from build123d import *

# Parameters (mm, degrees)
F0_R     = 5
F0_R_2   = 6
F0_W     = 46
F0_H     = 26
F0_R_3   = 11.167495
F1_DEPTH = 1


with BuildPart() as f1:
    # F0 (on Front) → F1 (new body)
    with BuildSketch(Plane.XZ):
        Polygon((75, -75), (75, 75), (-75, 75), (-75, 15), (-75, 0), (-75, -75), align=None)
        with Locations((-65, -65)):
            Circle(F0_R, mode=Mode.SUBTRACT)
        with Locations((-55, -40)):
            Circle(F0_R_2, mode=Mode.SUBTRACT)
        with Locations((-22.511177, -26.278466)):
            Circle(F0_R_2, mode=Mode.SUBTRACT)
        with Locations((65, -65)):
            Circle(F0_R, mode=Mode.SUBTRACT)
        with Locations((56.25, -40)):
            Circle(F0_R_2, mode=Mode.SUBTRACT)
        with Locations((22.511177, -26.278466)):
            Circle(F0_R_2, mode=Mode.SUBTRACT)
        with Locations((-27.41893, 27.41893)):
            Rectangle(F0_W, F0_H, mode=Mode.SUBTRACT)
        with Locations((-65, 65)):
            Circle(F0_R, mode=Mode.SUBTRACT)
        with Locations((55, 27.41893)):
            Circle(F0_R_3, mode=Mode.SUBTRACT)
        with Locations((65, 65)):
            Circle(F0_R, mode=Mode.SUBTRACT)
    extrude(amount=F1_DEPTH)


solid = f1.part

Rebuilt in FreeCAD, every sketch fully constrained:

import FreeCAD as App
import Part
import Sketcher


def add_polygon(sketch, points):
    """Adds a closed chain of lines whose ends are joined by coincident constraints."""
    first, n = sketch.GeometryCount, len(points)
    for a, b in zip(points, points[1:] + points[:1]):
        sketch.addGeometry(Part.LineSegment(App.Vector(*a, 0), App.Vector(*b, 0)), False)
    for i in range(n):
        sketch.addConstraint(Sketcher.Constraint("Coincident", first + i, 2, first + (i + 1) % n, 1))

doc = App.newDocument("Part")
body = doc.addObject("PartDesign::Body", "Body")

# Sketch on XZ plane
sketch1 = doc.addObject("Sketcher::SketchObject", "Sketch")
body.addObject(sketch1)
sketch1.AttachmentSupport = (doc.XZ_Plane, [""])
sketch1.MapMode = "FlatFace"
add_polygon(sketch1, [(75, -75), (75, 75), (-75, 75), (-75, -75)])  # lines 0-3
sketch1.addGeometry(Part.Circle(App.Vector(-65, -65, 0), App.Vector(0, 0, 1), 5), False)  # 4
sketch1.addGeometry(Part.Circle(App.Vector(-55, -40, 0), App.Vector(0, 0, 1), 6), False)  # 5
sketch1.addGeometry(Part.Circle(App.Vector(-23, -26, 0), App.Vector(0, 0, 1), 6), False)  # 6
sketch1.addGeometry(Part.Circle(App.Vector(65, -65, 0), App.Vector(0, 0, 1), 5), False)  # 7
sketch1.addGeometry(Part.Circle(App.Vector(56, -40, 0), App.Vector(0, 0, 1), 6), False)  # 8
sketch1.addGeometry(Part.Circle(App.Vector(23, -26, 0), App.Vector(0, 0, 1), 6), False)  # 9
add_polygon(sketch1, [(-4, 14), (-50, 14), (-50, 40), (-4, 40)])  # lines 10-13
sketch1.addGeometry(Part.Circle(App.Vector(-65, 65, 0), App.Vector(0, 0, 1), 5), False)  # 14
sketch1.addGeometry(Part.Circle(App.Vector(55, 27, 0), App.Vector(0, 0, 1), 11), False)  # 15
sketch1.addGeometry(Part.Circle(App.Vector(65, 65, 0), App.Vector(0, 0, 1), 5), False)  # 16
sketch1.addConstraint([
    Sketcher.Constraint("Vertical", 0),
    Sketcher.Constraint("Horizontal", 1),
    Sketcher.Constraint("Vertical", 2),
    Sketcher.Constraint("Horizontal", 3),
    Sketcher.Constraint("Horizontal", 10),
    Sketcher.Constraint("Vertical", 11),
    Sketcher.Constraint("Horizontal", 12),
    Sketcher.Constraint("Vertical", 13),
    Sketcher.Constraint("Equal", 5, 6),
    Sketcher.Constraint("Equal", 4, 7),
    Sketcher.Constraint("Equal", 6, 8),
    Sketcher.Constraint("Equal", 8, 9),
    Sketcher.Constraint("Equal", 7, 14),
    Sketcher.Constraint("Equal", 14, 16),
    Sketcher.Constraint("Symmetric", 7, 3, 14, 3, -1, 1),
    Sketcher.Constraint("Symmetric", 4, 3, 16, 3, -1, 1),
    Sketcher.Constraint("Symmetric", 0, 2, 2, 2, -1, 1),
    Sketcher.Constraint("Symmetric", 4, 3, 7, 3, -2),
    Sketcher.Constraint("Symmetric", 6, 3, 9, 3, -2),
    Sketcher.Constraint("Horizontal", 5, 3, 8, 3),
    Sketcher.Constraint("Equal", 3, 0),
    Sketcher.Constraint("Diameter", 4, 10.0),
    Sketcher.Constraint("Diameter", 5, 12.0),
    Sketcher.Constraint("DistanceX", 1, 2, 1, 1, 150.0),
    Sketcher.Constraint("DistanceX", 10, 2, 10, 1, 46.0),
    Sketcher.Constraint("DistanceY", 11, 1, 11, 2, 26.0),
    Sketcher.Constraint("DistanceX", 4, 3, -1, 1, 65.0),
    Sketcher.Constraint("DistanceY", 4, 3, -1, 1, 65.0),
    Sketcher.Constraint("DistanceX", 5, 3, -1, 1, 55.0),
    Sketcher.Constraint("DistanceY", 5, 3, -1, 1, 40.0),
    Sketcher.Constraint("DistanceX", -1, 1, 15, 3, 55.0),
    Sketcher.Constraint("DistanceY", 15, 3, 12, 2, 13.0),
    Sketcher.Constraint("Diameter", 15, 22.33499),
    Sketcher.Constraint("DistanceX", -1, 1, 8, 3, 56.25),
    Sketcher.Constraint("DistanceY", -1, 1, 15, 3, 27.41893),
    Sketcher.Constraint("DistanceX", 10, 2, -1, 1, 50.41893),
    Sketcher.Constraint("DistanceX", 6, 3, -1, 1, 22.511177),
    Sketcher.Constraint("DistanceY", 6, 3, -1, 1, 26.278466),
])
pad1 = doc.addObject("PartDesign::Pad", "Pad")
body.addObject(pad1)
pad1.Profile = sketch1
pad1.Length = 1

doc.recompute()
